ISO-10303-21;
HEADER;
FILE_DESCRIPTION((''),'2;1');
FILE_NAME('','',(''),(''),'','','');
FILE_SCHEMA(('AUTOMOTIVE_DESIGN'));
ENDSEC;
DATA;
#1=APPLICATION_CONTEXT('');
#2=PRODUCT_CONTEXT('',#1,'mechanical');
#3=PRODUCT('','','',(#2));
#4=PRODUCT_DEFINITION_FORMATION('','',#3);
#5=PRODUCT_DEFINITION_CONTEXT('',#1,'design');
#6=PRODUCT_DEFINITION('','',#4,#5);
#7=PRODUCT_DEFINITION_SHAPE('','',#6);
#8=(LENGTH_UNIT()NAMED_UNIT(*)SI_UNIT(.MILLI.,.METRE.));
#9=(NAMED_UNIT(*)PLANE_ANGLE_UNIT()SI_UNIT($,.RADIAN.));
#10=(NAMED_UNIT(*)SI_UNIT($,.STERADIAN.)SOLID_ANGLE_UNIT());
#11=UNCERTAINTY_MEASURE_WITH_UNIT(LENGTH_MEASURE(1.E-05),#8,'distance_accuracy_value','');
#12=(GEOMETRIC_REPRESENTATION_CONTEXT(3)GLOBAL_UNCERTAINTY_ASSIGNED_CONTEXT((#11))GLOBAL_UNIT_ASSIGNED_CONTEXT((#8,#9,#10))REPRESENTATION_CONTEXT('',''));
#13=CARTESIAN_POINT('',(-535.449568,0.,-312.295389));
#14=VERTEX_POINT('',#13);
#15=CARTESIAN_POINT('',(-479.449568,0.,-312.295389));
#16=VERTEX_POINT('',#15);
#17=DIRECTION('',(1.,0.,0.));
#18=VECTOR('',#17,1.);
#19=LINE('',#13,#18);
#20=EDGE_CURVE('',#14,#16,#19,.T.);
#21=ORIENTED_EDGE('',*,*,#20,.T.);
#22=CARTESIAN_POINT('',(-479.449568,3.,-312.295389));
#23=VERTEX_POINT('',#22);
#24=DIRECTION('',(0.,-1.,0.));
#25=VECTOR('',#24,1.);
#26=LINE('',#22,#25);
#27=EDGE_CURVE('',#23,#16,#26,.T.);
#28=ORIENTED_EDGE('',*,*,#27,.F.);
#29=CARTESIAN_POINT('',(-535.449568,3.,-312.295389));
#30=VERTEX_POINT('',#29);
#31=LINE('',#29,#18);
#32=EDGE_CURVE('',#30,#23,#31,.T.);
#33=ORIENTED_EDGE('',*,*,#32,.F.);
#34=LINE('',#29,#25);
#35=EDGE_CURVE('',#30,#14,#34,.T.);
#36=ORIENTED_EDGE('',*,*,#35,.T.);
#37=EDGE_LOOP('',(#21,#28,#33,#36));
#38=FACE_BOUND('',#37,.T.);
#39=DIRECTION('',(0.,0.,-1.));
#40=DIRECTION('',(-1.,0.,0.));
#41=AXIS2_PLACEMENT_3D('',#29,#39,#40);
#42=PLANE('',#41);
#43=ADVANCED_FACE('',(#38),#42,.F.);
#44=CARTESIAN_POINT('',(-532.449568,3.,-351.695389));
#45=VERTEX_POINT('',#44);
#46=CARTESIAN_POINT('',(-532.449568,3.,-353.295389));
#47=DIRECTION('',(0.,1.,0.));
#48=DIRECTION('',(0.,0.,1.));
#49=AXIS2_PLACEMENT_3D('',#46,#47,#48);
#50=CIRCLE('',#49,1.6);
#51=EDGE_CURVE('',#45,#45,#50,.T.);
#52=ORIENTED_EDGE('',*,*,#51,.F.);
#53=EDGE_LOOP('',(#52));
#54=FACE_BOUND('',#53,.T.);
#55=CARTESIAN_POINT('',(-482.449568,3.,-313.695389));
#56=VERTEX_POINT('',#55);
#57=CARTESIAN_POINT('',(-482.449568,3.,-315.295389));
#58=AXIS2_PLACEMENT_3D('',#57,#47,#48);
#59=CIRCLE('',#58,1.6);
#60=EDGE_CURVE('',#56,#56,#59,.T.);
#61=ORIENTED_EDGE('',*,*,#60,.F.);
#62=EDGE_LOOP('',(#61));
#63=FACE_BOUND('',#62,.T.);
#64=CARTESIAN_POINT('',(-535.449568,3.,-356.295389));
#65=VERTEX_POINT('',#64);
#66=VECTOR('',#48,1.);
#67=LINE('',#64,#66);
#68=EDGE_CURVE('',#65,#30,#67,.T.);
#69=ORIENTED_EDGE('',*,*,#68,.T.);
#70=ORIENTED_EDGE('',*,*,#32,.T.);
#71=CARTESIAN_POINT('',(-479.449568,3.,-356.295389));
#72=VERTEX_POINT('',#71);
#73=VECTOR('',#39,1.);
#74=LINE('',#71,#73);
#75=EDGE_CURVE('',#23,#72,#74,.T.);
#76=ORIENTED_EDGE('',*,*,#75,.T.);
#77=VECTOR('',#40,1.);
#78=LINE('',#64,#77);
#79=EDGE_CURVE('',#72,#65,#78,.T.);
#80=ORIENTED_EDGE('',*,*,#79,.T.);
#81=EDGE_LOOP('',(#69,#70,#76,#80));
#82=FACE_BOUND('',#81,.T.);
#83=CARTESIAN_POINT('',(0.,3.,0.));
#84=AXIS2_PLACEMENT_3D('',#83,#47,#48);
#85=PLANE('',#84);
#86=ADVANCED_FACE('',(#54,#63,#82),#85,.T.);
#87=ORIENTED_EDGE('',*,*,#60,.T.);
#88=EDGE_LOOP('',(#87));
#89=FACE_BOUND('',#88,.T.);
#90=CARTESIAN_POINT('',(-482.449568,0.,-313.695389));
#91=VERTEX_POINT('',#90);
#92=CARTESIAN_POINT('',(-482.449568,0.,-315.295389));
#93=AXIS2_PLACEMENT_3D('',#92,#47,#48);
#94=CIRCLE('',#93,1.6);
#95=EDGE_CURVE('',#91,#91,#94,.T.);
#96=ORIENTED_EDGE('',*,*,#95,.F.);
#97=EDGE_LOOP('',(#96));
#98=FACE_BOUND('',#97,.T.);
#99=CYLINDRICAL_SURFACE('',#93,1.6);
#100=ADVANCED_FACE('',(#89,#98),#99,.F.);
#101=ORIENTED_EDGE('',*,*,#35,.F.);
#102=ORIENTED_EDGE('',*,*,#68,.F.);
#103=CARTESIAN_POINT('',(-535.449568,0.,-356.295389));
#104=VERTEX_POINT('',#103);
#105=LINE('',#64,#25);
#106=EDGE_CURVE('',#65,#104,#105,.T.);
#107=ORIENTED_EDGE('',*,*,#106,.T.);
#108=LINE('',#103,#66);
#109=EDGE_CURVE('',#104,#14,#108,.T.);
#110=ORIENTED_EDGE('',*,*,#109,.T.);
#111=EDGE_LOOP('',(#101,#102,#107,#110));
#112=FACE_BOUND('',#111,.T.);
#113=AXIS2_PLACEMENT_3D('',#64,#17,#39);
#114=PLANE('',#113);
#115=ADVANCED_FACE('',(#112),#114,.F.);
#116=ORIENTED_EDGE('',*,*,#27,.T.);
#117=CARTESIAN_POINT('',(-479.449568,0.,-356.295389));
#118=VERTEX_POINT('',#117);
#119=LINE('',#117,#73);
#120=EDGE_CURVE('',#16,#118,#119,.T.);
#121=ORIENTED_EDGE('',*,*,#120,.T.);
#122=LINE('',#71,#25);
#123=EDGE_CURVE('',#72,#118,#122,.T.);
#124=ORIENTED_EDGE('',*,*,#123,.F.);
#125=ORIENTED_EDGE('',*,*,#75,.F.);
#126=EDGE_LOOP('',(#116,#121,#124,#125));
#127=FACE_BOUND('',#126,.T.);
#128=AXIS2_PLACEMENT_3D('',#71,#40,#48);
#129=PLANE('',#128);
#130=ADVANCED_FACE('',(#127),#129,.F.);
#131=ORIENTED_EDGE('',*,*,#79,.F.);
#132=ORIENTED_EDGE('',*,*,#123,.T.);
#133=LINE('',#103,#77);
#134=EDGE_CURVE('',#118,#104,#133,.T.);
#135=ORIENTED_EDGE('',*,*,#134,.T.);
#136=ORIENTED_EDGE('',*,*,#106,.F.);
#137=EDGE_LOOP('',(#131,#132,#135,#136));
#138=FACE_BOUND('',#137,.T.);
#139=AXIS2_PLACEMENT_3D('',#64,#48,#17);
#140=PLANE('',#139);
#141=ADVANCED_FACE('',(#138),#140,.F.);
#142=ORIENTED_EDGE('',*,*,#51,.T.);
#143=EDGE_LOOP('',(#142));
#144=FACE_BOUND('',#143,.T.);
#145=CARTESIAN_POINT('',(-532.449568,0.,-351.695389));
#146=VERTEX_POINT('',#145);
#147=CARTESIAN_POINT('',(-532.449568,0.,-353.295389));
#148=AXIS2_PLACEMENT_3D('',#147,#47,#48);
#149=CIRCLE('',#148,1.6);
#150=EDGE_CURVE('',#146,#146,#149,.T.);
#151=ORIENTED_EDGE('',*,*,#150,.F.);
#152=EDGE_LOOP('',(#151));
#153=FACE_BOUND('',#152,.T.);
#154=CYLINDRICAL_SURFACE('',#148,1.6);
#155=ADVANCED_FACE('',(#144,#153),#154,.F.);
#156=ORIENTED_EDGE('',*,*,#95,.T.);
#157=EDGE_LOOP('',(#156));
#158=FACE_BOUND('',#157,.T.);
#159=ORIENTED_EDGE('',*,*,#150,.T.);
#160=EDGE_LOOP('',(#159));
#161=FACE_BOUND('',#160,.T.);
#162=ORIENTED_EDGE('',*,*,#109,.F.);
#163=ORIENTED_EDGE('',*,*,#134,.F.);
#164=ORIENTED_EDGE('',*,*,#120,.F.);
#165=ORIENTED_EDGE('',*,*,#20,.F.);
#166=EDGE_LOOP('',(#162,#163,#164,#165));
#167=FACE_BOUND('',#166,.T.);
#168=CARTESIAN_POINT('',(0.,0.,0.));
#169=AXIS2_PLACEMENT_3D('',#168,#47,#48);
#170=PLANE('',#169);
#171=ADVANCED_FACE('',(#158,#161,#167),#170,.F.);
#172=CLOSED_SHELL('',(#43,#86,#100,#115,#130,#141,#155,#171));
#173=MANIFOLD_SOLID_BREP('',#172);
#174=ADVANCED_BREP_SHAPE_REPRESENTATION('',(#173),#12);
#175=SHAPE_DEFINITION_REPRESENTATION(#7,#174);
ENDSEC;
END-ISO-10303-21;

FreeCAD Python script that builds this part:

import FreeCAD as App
import Part
import Sketcher

V = App.Vector
Q = App.Units.Quantity

doc = App.newDocument("Part")
body = doc.addObject("PartDesign::Body", "Body")

sketch1 = body.newObject("Sketcher::SketchObject", "Sketch")
sketch1.AttachmentSupport = (doc.getObject("XZ_Plane"), [""])
sketch1.MapMode = "FlatFace"
sketch1.addGeometry([
    Part.LineSegment(V(-535, -356, 0), V(-535, -312, 0)),
    Part.LineSegment(V(-535, -312, 0), V(-479, -312, 0)),
    Part.LineSegment(V(-479, -312, 0), V(-479, -356, 0)),
    Part.LineSegment(V(-479, -356, 0), V(-535, -356, 0)),
], False)
sketch1.addConstraint([
    Sketcher.Constraint("Coincident", 0, 2, 1, 1),
    Sketcher.Constraint("Coincident", 1, 2, 2, 1),
    Sketcher.Constraint("Coincident", 2, 2, 3, 1),
    Sketcher.Constraint("Coincident", 3, 2, 0, 1),
    Sketcher.Constraint("Vertical", 0),
    Sketcher.Constraint("Horizontal", 1),
    Sketcher.Constraint("Vertical", 2),
    Sketcher.Constraint("Horizontal", 3),
    Sketcher.Constraint("DistanceX", 1, 1, 1, 2, Q("56 mm")),
    Sketcher.Constraint("DistanceY", 0, 1, 0, 2, Q("44 mm")),
    Sketcher.Constraint("DistanceY", 0, 2, -1, 1, Q("312.295389 mm")),
    Sketcher.Constraint("DistanceX", 0, 2, -1, 1, Q("535.449568 mm")),
])
pad1 = body.newObject("PartDesign::Pad", "Pad")
pad1.Profile = sketch1
pad1.Length = 3
pad1.Reversed = True

sketch2 = body.newObject("Sketcher::SketchObject", "Sketch001")
sketch2.AttachmentSupport = (doc.getObject("XZ_Plane"), [""])
sketch2.MapMode = "FlatFace"
sketch2.AttachmentOffset = App.Placement(V(0, 0, -3), App.Rotation())
sketch2.addGeometry(Part.Circle(V(-532.4, -353.3, 0), V(0, 0, 1), 1.6), False)
sketch2.addConstraint([
    Sketcher.Constraint("Diameter", 0, Q("3.2 mm")),
    Sketcher.Constraint("DistanceY", 0, 3, -1, 1, Q("353.295389 mm")),
    Sketcher.Constraint("DistanceX", 0, 3, -1, 1, Q("532.449568 mm")),
])
pocket1 = body.newObject("PartDesign::Pocket", "Pocket")
pocket1.Profile = sketch2
pocket1.Length = 3
pocket1.Reversed = True

sketch3 = body.newObject("Sketcher::SketchObject", "Sketch002")
sketch3.AttachmentSupport = (doc.getObject("XZ_Plane"), [""])
sketch3.MapMode = "FlatFace"
sketch3.AttachmentOffset = App.Placement(V(0, 0, -3), App.Rotation())
sketch3.addGeometry(Part.Circle(V(-482.4, -315.3, 0), V(0, 0, 1), 1.6), False)
sketch3.addConstraint([
    Sketcher.Constraint("Diameter", 0, Q("3.2 mm")),
    Sketcher.Constraint("DistanceY", 0, 3, -1, 1, Q("315.295389 mm")),
    Sketcher.Constraint("DistanceX", 0, 3, -1, 1, Q("482.449568 mm")),
])
pocket2 = body.newObject("PartDesign::Pocket", "Pocket001")
pocket2.Profile = sketch3
pocket2.Length = 3
pocket2.Reversed = True

doc.recompute()
